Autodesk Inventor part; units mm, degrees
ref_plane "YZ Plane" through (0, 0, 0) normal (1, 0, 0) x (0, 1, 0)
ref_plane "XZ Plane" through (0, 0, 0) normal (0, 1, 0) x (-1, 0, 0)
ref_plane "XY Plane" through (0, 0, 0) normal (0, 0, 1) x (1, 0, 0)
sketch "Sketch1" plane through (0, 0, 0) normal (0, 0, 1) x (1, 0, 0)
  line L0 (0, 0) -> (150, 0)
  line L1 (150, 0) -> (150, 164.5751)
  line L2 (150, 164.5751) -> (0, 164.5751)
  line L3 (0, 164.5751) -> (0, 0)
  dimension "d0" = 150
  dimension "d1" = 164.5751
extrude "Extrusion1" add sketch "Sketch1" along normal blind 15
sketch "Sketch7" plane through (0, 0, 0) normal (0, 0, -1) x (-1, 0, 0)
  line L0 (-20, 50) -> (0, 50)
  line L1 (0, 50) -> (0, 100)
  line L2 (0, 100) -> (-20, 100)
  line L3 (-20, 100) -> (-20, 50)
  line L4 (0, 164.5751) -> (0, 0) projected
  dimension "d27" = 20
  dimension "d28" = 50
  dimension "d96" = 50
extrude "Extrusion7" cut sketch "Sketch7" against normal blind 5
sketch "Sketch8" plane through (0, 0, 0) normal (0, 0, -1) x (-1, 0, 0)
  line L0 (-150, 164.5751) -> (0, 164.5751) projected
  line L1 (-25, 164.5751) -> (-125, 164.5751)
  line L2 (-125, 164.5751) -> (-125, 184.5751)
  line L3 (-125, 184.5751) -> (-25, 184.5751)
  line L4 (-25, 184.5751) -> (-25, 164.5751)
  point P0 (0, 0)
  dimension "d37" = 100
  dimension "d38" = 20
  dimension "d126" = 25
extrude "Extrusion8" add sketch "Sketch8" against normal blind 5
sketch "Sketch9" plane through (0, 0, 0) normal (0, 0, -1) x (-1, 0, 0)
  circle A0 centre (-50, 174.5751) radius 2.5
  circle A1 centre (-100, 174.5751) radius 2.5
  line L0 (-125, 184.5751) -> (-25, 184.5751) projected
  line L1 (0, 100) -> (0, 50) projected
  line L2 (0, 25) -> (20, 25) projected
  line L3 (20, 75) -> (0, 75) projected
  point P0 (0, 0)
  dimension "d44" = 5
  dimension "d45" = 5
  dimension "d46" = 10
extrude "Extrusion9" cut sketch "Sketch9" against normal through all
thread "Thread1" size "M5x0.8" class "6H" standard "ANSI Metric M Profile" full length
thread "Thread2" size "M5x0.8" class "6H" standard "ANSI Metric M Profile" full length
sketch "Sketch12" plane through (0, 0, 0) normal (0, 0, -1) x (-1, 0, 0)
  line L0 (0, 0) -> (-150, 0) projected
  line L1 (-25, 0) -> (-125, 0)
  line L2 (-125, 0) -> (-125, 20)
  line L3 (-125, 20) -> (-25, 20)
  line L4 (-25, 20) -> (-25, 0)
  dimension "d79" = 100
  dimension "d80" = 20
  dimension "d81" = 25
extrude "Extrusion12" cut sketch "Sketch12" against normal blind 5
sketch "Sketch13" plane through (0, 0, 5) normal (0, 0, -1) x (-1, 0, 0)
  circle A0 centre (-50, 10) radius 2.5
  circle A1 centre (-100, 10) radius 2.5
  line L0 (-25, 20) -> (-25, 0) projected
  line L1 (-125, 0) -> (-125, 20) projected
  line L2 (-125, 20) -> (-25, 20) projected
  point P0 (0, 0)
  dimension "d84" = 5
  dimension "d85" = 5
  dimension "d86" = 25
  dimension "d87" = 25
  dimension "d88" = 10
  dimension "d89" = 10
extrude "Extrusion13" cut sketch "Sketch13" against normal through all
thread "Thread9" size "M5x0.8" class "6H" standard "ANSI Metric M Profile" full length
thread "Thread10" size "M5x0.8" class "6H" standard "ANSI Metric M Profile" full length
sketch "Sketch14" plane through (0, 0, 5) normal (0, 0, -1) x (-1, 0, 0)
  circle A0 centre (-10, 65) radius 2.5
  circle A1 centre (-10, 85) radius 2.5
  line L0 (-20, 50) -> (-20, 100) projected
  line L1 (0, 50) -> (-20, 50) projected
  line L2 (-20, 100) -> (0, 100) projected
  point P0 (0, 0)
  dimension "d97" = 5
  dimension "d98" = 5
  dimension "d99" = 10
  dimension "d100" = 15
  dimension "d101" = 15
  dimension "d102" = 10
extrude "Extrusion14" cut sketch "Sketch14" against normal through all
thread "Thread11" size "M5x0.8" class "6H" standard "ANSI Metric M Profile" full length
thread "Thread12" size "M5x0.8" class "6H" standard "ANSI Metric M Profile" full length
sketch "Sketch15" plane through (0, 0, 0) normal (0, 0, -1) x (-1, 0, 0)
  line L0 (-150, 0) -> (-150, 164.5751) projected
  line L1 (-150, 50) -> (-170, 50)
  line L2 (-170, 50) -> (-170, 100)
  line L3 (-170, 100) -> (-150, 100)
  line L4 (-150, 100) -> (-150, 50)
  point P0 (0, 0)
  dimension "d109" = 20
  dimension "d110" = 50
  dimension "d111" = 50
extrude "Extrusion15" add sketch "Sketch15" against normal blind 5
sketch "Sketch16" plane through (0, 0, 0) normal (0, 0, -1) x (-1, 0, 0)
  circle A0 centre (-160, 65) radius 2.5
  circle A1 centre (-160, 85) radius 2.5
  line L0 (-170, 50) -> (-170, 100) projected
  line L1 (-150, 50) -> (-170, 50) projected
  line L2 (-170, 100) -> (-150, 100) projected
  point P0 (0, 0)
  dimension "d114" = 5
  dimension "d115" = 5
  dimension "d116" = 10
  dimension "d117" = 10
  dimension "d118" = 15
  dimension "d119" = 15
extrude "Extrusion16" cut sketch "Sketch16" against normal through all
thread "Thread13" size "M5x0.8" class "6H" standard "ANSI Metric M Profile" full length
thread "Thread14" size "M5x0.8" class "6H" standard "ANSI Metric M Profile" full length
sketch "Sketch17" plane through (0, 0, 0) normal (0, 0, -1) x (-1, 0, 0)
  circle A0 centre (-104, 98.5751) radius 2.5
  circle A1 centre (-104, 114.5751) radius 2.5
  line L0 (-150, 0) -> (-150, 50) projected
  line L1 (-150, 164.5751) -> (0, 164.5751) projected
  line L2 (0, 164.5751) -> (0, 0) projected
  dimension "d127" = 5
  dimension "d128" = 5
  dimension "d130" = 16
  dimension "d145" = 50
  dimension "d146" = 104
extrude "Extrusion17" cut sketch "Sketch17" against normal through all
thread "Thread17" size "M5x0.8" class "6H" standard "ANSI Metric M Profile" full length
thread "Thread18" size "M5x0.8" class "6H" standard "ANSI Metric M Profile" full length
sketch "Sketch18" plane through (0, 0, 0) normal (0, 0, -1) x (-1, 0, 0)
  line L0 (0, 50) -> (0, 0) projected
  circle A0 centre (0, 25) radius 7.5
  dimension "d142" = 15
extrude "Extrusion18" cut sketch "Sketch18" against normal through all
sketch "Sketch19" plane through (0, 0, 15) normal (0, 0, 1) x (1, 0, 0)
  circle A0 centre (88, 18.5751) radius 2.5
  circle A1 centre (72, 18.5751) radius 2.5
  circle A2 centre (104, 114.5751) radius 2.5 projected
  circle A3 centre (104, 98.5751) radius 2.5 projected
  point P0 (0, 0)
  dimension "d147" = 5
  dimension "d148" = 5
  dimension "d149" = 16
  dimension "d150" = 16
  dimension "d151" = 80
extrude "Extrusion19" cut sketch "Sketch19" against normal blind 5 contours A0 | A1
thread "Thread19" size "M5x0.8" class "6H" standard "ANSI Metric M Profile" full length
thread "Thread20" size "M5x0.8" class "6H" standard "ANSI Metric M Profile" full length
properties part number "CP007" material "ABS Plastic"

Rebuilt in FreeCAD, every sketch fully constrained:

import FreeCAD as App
import Part
import Sketcher
Q = App.Units.Quantity


def add_polygon(sketch, points):
    """Adds a closed chain of lines whose ends are joined by coincident constraints."""
    first, n = sketch.GeometryCount, len(points)
    for a, b in zip(points, points[1:] + points[:1]):
        sketch.addGeometry(Part.LineSegment(App.Vector(*a, 0), App.Vector(*b, 0)), False)
    for i in range(n):
        sketch.addConstraint(Sketcher.Constraint("Coincident", first + i, 2, first + (i + 1) % n, 1))

doc = App.newDocument("Part")
body = doc.addObject("PartDesign::Body", "Body")

# Sketch on XY plane
sketch1 = body.newObject("Sketcher::SketchObject", "Sketch")
sketch1.AttachmentSupport = (doc.getObject("XY_Plane"), [""])
sketch1.MapMode = "FlatFace"
add_polygon(sketch1, [(0, 164.5751), (0, 0), (150, 0), (150, 164.5751)])  # lines 0-3
sketch1.addConstraint(Sketcher.Constraint("Vertical", 0))
sketch1.addConstraint(Sketcher.Constraint("Horizontal", 1))
sketch1.addConstraint(Sketcher.Constraint("Vertical", 2))
sketch1.addConstraint(Sketcher.Constraint("Horizontal", 3))
sketch1.addConstraint(Sketcher.Constraint("Coincident", 0, 2, -1, 1))
sketch1.addConstraint(Sketcher.Constraint("DistanceX", 1, 1, 1, 2, Q("150 mm")))
sketch1.addConstraint(Sketcher.Constraint("DistanceY", 0, 2, 0, 1, Q("164.575 mm")))
pad1 = body.newObject("PartDesign::Pad", "Pad")
pad1.Profile = sketch1
pad1.Length = 15

# Sketch on XY plane
sketch2 = body.newObject("Sketcher::SketchObject", "Sketch001")
sketch2.AttachmentSupport = (doc.getObject("XY_Plane"), [""])
sketch2.MapMode = "FlatFace"
add_polygon(sketch2, [(20, 100), (20, 50), (0, 50), (0, 100)])  # lines 0-3
sketch2.addConstraint(Sketcher.Constraint("Vertical", 0))
sketch2.addConstraint(Sketcher.Constraint("Horizontal", 1))
sketch2.addConstraint(Sketcher.Constraint("Vertical", 2))
sketch2.addConstraint(Sketcher.Constraint("Horizontal", 3))
sketch2.addConstraint(Sketcher.Constraint("PointOnObject", 1, 2, -2))
sketch2.addConstraint(Sketcher.Constraint("DistanceX", 1, 2, 1, 1, Q("20 mm")))
sketch2.addConstraint(Sketcher.Constraint("DistanceY", 0, 2, 0, 1, Q("50 mm")))
sketch2.addConstraint(Sketcher.Constraint("DistanceY", -1, 1, 0, 2, Q("50 mm")))
pocket1 = body.newObject("PartDesign::Pocket", "Pocket")
pocket1.Profile = sketch2
pocket1.Length = 5
pocket1.Reversed = True

# Sketch on XY plane
sketch3 = body.newObject("Sketcher::SketchObject", "Sketch002")
sketch3.AttachmentSupport = (doc.getObject("XY_Plane"), [""])
sketch3.MapMode = "FlatFace"
add_polygon(sketch3, [(125, 184.5751), (125, 164.5751), (25, 164.5751), (25, 184.5751)])  # lines 0-3
sketch3.addConstraint(Sketcher.Constraint("Vertical", 0))
sketch3.addConstraint(Sketcher.Constraint("Horizontal", 1))
sketch3.addConstraint(Sketcher.Constraint("Vertical", 2))
sketch3.addConstraint(Sketcher.Constraint("Horizontal", 3))
sketch3.addConstraint(Sketcher.Constraint("DistanceX", 1, 2, 1, 1, Q("100 mm")))
sketch3.addConstraint(Sketcher.Constraint("DistanceY", 0, 2, 0, 1, Q("20 mm")))
sketch3.addConstraint(Sketcher.Constraint("DistanceX", -1, 1, 1, 2, Q("25 mm")))
sketch3.addConstraint(Sketcher.Constraint("DistanceY", -1, 1, 0, 2, Q("164.575 mm")))
pad2 = body.newObject("PartDesign::Pad", "Pad001")
pad2.Profile = sketch3
pad2.Length = 5

# Sketch on XY plane
sketch4 = body.newObject("Sketcher::SketchObject", "Sketch003")
sketch4.AttachmentSupport = (doc.getObject("XY_Plane"), [""])
sketch4.MapMode = "FlatFace"
sketch4.addGeometry(Part.Circle(App.Vector(50, 174.5751, 0), App.Vector(0, 0, 1), 2.5), False)
sketch4.addGeometry(Part.Circle(App.Vector(100, 174.5751, 0), App.Vector(0, 0, 1), 2.5), False)
sketch4.addConstraint(Sketcher.Constraint("Equal", 0, 1))
sketch4.addConstraint(Sketcher.Constraint("Horizontal", 0, 3, 1, 3))
sketch4.addConstraint(Sketcher.Constraint("Diameter", 0, Q("5 mm")))
sketch4.addConstraint(Sketcher.Constraint("DistanceX", -1, 1, 0, 3, Q("50 mm")))
sketch4.addConstraint(Sketcher.Constraint("DistanceX", -1, 1, 1, 3, Q("100 mm")))
sketch4.addConstraint(Sketcher.Constraint("DistanceY", -1, 1, 0, 3, Q("174.575 mm")))
pocket2 = body.newObject("PartDesign::Pocket", "Pocket001")
pocket2.Profile = sketch4
pocket2.Type = "ThroughAll"
pocket2.Reversed = True

# Sketch on XY plane
sketch5 = body.newObject("Sketcher::SketchObject", "Sketch004")
sketch5.AttachmentSupport = (doc.getObject("XY_Plane"), [""])
sketch5.MapMode = "FlatFace"
add_polygon(sketch5, [(125, 0), (25, 0), (25, 20), (125, 20)])  # lines 0-3
sketch5.addConstraint(Sketcher.Constraint("Horizontal", 0))
sketch5.addConstraint(Sketcher.Constraint("Vertical", 1))
sketch5.addConstraint(Sketcher.Constraint("Horizontal", 2))
sketch5.addConstraint(Sketcher.Constraint("Vertical", 3))
sketch5.addConstraint(Sketcher.Constraint("PointOnObject", 0, 2, -1))
sketch5.addConstraint(Sketcher.Constraint("DistanceX", 0, 2, 0, 1, Q("100 mm")))
sketch5.addConstraint(Sketcher.Constraint("DistanceY", 1, 1, 1, 2, Q("20 mm")))
sketch5.addConstraint(Sketcher.Constraint("DistanceX", -1, 1, 0, 2, Q("25 mm")))
pocket3 = body.newObject("PartDesign::Pocket", "Pocket002")
pocket3.Profile = sketch5
pocket3.Length = 5
pocket3.Reversed = True

# Sketch on XY plane
sketch6 = body.newObject("Sketcher::SketchObject", "Sketch005")
sketch6.AttachmentSupport = (doc.getObject("XY_Plane"), [""])
sketch6.MapMode = "FlatFace"
sketch6.AttachmentOffset = App.Placement(App.Vector(0, 0, 5), App.Rotation())
sketch6.addGeometry(Part.Circle(App.Vector(50, 10, 0), App.Vector(0, 0, 1), 2.5), False)
sketch6.addGeometry(Part.Circle(App.Vector(100, 10, 0), App.Vector(0, 0, 1), 2.5), False)
sketch6.addConstraint(Sketcher.Constraint("Equal", 0, 1))
sketch6.addConstraint(Sketcher.Constraint("Horizontal", 0, 3, 1, 3))
sketch6.addConstraint(Sketcher.Constraint("Diameter", 0, Q("5 mm")))
sketch6.addConstraint(Sketcher.Constraint("DistanceY", -1, 1, 0, 3, Q("10 mm")))
sketch6.addConstraint(Sketcher.Constraint("DistanceX", -1, 1, 0, 3, Q("50 mm")))
sketch6.addConstraint(Sketcher.Constraint("DistanceX", -1, 1, 1, 3, Q("100 mm")))
pocket4 = body.newObject("PartDesign::Pocket", "Pocket003")
pocket4.Profile = sketch6
pocket4.Type = "ThroughAll"
pocket4.Reversed = True

# Sketch on XY plane
sketch7 = body.newObject("Sketcher::SketchObject", "Sketch006")
sketch7.AttachmentSupport = (doc.getObject("XY_Plane"), [""])
sketch7.MapMode = "FlatFace"
sketch7.AttachmentOffset = App.Placement(App.Vector(0, 0, 5), App.Rotation())
sketch7.addGeometry(Part.Circle(App.Vector(10, 65, 0), App.Vector(0, 0, 1), 2.5), False)
sketch7.addGeometry(Part.Circle(App.Vector(10, 85, 0), App.Vector(0, 0, 1), 2.5), False)
sketch7.addConstraint(Sketcher.Constraint("Equal", 0, 1))
sketch7.addConstraint(Sketcher.Constraint("Vertical", 0, 3, 1, 3))
sketch7.addConstraint(Sketcher.Constraint("Diameter", 0, Q("5 mm")))
sketch7.addConstraint(Sketcher.Constraint("DistanceX", -1, 1, 0, 3, Q("10 mm")))
sketch7.addConstraint(Sketcher.Constraint("DistanceY", -1, 1, 0, 3, Q("65 mm")))
sketch7.addConstraint(Sketcher.Constraint("DistanceY", -1, 1, 1, 3, Q("85 mm")))
pocket5 = body.newObject("PartDesign::Pocket", "Pocket004")
pocket5.Profile = sketch7
pocket5.Type = "ThroughAll"
pocket5.Reversed = True

# Sketch on XY plane
sketch8 = body.newObject("Sketcher::SketchObject", "Sketch007")
sketch8.AttachmentSupport = (doc.getObject("XY_Plane"), [""])
sketch8.MapMode = "FlatFace"
add_polygon(sketch8, [(170, 50), (150, 50), (150, 100), (170, 100)])  # lines 0-3
sketch8.addConstraint(Sketcher.Constraint("Horizontal", 0))
sketch8.addConstraint(Sketcher.Constraint("Vertical", 1))
sketch8.addConstraint(Sketcher.Constraint("Horizontal", 2))
sketch8.addConstraint(Sketcher.Constraint("Vertical", 3))
sketch8.addConstraint(Sketcher.Constraint("DistanceX", 0, 2, 0, 1, Q("20 mm")))
sketch8.addConstraint(Sketcher.Constraint("DistanceY", 1, 1, 1, 2, Q("50 mm")))
sketch8.addConstraint(Sketcher.Constraint("DistanceY", -1, 1, 0, 2, Q("50 mm")))
sketch8.addConstraint(Sketcher.Constraint("DistanceX", -1, 1, 0, 2, Q("150 mm")))
pad3 = body.newObject("PartDesign::Pad", "Pad002")
pad3.Profile = sketch8
pad3.Length = 5

# Sketch on XY plane
sketch9 = body.newObject("Sketcher::SketchObject", "Sketch008")
sketch9.AttachmentSupport = (doc.getObject("XY_Plane"), [""])
sketch9.MapMode = "FlatFace"
sketch9.addGeometry(Part.Circle(App.Vector(160, 65, 0), App.Vector(0, 0, 1), 2.5), False)
sketch9.addGeometry(Part.Circle(App.Vector(160, 85, 0), App.Vector(0, 0, 1), 2.5), False)
sketch9.addConstraint(Sketcher.Constraint("Equal", 0, 1))
sketch9.addConstraint(Sketcher.Constraint("Vertical", 0, 3, 1, 3))
sketch9.addConstraint(Sketcher.Constraint("Diameter", 0, Q("5 mm")))
sketch9.addConstraint(Sketcher.Constraint("DistanceX", -1, 1, 0, 3, Q("160 mm")))
sketch9.addConstraint(Sketcher.Constraint("DistanceY", -1, 1, 0, 3, Q("65 mm")))
sketch9.addConstraint(Sketcher.Constraint("DistanceY", -1, 1, 1, 3, Q("85 mm")))
pocket6 = body.newObject("PartDesign::Pocket", "Pocket005")
pocket6.Profile = sketch9
pocket6.Type = "ThroughAll"
pocket6.Reversed = True

# Sketch on XY plane
sketch10 = body.newObject("Sketcher::SketchObject", "Sketch009")
sketch10.AttachmentSupport = (doc.getObject("XY_Plane"), [""])
sketch10.MapMode = "FlatFace"
sketch10.addGeometry(Part.Circle(App.Vector(104, 98.5751, 0), App.Vector(0, 0, 1), 2.5), False)
sketch10.addGeometry(Part.Circle(App.Vector(104, 114.5751, 0), App.Vector(0, 0, 1), 2.5), False)
sketch10.addConstraint(Sketcher.Constraint("Equal", 0, 1))
sketch10.addConstraint(Sketcher.Constraint("Vertical", 0, 3, 1, 3))
sketch10.addConstraint(Sketcher.Constraint("Diameter", 0, Q("5 mm")))
sketch10.addConstraint(Sketcher.Constraint("DistanceX", -1, 1, 0, 3, Q("104 mm")))
sketch10.addConstraint(Sketcher.Constraint("DistanceY", 0, 3, 1, 3, Q("16 mm")))
sketch10.addConstraint(Sketcher.Constraint("DistanceY", -1, 1, 0, 3, Q("98.575 mm")))
pocket7 = body.newObject("PartDesign::Pocket", "Pocket006")
pocket7.Profile = sketch10
pocket7.Type = "ThroughAll"
pocket7.Reversed = True

# Sketch on XY plane
sketch11 = body.newObject("Sketcher::SketchObject", "Sketch010")
sketch11.AttachmentSupport = (doc.getObject("XY_Plane"), [""])
sketch11.MapMode = "FlatFace"
sketch11.addGeometry(Part.Circle(App.Vector(0, 25, 0), App.Vector(0, 0, 1), 7.5), False)
sketch11.addConstraint(Sketcher.Constraint("PointOnObject", 0, 3, -2))
sketch11.addConstraint(Sketcher.Constraint("Diameter", 0, Q("15 mm")))
sketch11.addConstraint(Sketcher.Constraint("DistanceY", -1, 1, 0, 3, Q("25 mm")))
pocket8 = body.newObject("PartDesign::Pocket", "Pocket007")
pocket8.Profile = sketch11
pocket8.Type = "ThroughAll"
pocket8.Reversed = True

# Sketch on XY plane
sketch12 = body.newObject("Sketcher::SketchObject", "Sketch011")
sketch12.AttachmentSupport = (doc.getObject("XY_Plane"), [""])
sketch12.MapMode = "FlatFace"
sketch12.AttachmentOffset = App.Placement(App.Vector(0, 0, 15), App.Rotation())
sketch12.addGeometry(Part.Circle(App.Vector(88, 18.5751, 0), App.Vector(0, 0, 1), 2.5), False)
sketch12.addGeometry(Part.Circle(App.Vector(72, 18.5751, 0), App.Vector(0, 0, 1), 2.5), False)
sketch12.addConstraint(Sketcher.Constraint("Equal", 0, 1))
sketch12.addConstraint(Sketcher.Constraint("Horizontal", 0, 3, 1, 3))
sketch12.addConstraint(Sketcher.Constraint("Diameter", 0, Q("5 mm")))
sketch12.addConstraint(Sketcher.Constraint("DistanceX", 1, 3, 0, 3, Q("16 mm")))
sketch12.addConstraint(Sketcher.Constraint("DistanceX", -1, 1, 0, 3, Q("88 mm")))
sketch12.addConstraint(Sketcher.Constraint("DistanceY", -1, 1, 0, 3, Q("18.575 mm")))
pocket9 = body.newObject("PartDesign::Pocket", "Pocket008")
pocket9.Profile = sketch12
pocket9.Length = 5

doc.recompute()
